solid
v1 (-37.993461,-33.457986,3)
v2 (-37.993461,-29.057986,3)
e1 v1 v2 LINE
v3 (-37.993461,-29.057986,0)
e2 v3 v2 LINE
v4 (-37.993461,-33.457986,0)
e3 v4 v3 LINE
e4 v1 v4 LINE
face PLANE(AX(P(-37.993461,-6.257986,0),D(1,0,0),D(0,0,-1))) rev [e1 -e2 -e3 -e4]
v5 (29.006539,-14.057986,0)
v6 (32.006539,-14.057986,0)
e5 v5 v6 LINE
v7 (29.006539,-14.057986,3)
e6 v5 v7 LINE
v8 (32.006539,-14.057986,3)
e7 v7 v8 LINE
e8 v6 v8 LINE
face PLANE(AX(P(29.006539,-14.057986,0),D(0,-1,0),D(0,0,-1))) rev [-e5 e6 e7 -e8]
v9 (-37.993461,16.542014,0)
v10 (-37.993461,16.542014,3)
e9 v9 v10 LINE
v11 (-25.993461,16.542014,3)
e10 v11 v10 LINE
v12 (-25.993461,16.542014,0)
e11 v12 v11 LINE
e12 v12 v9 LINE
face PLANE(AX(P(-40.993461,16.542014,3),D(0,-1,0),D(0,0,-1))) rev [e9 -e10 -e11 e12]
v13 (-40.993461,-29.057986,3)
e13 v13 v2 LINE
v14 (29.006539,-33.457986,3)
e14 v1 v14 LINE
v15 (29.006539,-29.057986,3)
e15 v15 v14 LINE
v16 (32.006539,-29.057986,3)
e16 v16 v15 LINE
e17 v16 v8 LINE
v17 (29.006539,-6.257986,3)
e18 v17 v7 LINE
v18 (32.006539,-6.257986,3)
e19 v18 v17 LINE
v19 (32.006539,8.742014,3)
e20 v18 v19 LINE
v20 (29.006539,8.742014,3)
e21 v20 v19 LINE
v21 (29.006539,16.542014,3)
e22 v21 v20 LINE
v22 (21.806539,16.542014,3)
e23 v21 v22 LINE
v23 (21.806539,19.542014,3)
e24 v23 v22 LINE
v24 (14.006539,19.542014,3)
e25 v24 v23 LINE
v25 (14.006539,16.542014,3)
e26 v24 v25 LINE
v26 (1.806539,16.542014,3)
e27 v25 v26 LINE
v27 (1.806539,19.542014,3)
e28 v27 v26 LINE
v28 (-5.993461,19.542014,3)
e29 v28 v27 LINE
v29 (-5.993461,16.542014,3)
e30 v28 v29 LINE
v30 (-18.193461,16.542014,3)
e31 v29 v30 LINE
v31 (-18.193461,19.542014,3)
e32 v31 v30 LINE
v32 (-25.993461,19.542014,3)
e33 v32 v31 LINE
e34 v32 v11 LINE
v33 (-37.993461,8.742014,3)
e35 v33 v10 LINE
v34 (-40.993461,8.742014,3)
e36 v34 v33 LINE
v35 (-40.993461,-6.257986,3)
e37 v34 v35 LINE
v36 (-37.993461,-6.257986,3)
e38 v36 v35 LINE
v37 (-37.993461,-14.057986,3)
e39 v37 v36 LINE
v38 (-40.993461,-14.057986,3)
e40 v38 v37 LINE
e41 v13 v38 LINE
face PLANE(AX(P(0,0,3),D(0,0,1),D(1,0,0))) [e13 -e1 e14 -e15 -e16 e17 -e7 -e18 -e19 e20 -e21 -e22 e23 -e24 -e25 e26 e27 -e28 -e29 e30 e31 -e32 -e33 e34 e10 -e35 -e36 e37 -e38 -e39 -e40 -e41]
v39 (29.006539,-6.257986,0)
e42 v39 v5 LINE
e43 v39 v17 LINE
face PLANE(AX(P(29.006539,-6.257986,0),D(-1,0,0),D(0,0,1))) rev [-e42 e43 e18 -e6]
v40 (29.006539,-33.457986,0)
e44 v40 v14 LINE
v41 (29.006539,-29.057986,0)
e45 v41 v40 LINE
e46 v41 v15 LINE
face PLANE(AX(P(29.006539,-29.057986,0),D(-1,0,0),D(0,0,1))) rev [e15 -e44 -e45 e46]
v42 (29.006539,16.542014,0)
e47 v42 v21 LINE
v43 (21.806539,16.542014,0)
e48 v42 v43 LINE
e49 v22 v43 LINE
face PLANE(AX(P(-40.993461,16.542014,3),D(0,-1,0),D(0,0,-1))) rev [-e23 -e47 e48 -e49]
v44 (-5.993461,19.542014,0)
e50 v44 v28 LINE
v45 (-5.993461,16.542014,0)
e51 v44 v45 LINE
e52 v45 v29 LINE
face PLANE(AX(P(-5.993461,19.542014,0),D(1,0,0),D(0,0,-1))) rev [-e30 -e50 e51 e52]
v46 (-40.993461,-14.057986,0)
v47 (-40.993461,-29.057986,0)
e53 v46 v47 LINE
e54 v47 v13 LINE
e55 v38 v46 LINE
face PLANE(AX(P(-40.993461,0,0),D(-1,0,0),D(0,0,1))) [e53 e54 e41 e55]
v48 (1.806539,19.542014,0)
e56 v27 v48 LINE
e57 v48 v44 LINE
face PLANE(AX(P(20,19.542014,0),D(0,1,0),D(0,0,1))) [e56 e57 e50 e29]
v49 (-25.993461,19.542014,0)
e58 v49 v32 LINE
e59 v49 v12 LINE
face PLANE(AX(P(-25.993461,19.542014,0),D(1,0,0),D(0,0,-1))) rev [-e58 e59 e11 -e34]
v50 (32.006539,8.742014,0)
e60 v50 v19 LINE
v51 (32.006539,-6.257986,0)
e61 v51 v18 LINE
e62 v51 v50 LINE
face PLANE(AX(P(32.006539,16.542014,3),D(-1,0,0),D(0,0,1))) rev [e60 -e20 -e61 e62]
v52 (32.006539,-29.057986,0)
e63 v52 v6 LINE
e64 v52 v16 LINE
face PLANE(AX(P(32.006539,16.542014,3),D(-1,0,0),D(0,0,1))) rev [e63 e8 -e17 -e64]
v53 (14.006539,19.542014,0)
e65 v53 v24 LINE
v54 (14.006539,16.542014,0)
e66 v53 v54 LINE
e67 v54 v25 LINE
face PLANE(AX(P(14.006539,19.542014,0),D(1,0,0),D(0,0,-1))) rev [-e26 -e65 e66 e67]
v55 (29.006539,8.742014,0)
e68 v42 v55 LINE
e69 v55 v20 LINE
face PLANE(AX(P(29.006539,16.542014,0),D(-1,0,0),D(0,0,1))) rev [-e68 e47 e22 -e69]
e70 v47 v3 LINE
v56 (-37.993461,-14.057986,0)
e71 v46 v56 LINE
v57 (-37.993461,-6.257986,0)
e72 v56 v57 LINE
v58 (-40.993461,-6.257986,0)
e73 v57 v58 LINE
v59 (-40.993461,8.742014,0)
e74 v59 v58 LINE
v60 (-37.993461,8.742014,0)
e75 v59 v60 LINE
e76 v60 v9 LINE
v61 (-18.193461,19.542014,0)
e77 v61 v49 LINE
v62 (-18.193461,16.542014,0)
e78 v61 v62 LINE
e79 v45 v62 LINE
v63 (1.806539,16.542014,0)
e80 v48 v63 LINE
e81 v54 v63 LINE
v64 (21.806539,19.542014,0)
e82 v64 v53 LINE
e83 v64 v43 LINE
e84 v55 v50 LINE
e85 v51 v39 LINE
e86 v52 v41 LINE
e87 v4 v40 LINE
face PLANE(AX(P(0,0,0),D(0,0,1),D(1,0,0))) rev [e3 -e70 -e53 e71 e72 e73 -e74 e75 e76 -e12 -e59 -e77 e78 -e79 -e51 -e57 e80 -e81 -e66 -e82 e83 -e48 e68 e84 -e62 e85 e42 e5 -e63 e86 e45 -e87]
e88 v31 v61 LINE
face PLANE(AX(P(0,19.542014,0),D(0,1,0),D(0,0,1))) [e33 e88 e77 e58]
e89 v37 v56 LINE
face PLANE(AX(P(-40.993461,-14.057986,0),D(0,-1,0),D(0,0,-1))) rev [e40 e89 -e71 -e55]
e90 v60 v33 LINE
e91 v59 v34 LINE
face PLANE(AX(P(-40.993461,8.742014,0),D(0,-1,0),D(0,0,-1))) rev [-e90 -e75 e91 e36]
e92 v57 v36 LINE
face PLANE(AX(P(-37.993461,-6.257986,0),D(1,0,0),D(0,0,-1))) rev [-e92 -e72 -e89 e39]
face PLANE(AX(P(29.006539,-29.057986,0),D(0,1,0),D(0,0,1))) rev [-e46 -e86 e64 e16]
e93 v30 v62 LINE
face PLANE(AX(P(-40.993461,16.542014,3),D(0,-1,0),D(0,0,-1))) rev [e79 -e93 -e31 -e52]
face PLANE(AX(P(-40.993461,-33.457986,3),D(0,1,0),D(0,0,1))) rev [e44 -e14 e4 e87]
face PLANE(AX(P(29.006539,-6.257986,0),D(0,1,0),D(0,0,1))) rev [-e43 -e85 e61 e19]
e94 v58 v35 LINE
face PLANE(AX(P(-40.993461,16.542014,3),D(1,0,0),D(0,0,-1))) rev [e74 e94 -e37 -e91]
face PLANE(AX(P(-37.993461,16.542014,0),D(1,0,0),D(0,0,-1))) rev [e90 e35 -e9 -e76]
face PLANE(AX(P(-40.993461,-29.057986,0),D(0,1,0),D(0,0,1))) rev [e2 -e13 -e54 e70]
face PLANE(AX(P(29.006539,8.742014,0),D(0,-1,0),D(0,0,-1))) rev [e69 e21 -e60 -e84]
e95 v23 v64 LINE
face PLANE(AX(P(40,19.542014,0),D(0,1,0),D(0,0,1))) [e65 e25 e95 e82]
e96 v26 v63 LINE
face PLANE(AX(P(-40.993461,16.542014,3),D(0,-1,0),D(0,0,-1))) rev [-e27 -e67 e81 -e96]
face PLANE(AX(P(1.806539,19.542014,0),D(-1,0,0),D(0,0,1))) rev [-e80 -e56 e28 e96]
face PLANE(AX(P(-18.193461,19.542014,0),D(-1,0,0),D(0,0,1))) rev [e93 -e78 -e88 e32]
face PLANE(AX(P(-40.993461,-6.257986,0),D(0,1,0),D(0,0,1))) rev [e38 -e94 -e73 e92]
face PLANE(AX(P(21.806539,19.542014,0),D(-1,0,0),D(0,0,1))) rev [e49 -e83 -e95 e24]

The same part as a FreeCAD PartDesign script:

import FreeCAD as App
import Part
import Sketcher


def add_polygon(sketch, points):
    """Adds a closed chain of lines whose ends are joined by coincident constraints."""
    first, n = sketch.GeometryCount, len(points)
    for a, b in zip(points, points[1:] + points[:1]):
        sketch.addGeometry(Part.LineSegment(App.Vector(*a, 0), App.Vector(*b, 0)), False)
    for i in range(n):
        sketch.addConstraint(Sketcher.Constraint("Coincident", first + i, 2, first + (i + 1) % n, 1))

doc = App.newDocument("Part")
params = doc.addObject("Spreadsheet::Sheet", "Params")
for row, (alias, value) in enumerate([
    ("sketch1_width", "73 mm"),
    ("sketch1_height", "50 mm"),
    ("pad1_length", "3 mm"),
    ("sketch2_width", "3 mm"),
    ("sketch2_height", "7.8 mm"),
    ("linearpattern_pitch", "22.8 mm"),
    ("sketch3_width", "3 mm"),
    ("sketch3_height", "7.8 mm"),
    ("linearpattern2_pitch", "22.8 mm"),
    ("sketch4_width", "3 mm"),
    ("sketch4_height", "19.4 mm"),
    ("pocket3_length", "10 mm"),
    ("sketch5_height", "3 mm"),
    ("sketch5_width", "7.8 mm"),
    ("pad2_length", "3 mm"),
    ("linearpattern3_pitch", "20 mm"),
    ("sketch6_width", "15 mm"),
    ("sketch6_height", "3 mm"),
    ("pad3_length", "3 mm"),
], start=1):
    params.set(f"A{row}", alias)
    params.set(f"B{row}", "=" + value)
    params.setAlias(f"B{row}", alias)

body = doc.addObject("PartDesign::Body", "Body")

sketch1 = body.newObject("Sketcher::SketchObject", "Sketch")
sketch1.AttachmentSupport = (doc.getObject("XY_Plane"), [""])
sketch1.MapMode = "FlatFace"
add_polygon(sketch1, [(-41, 17), (-41, -33), (32, -33), (32, 17)])
sketch1.addConstraint(Sketcher.Constraint("Vertical", 0))
sketch1.addConstraint(Sketcher.Constraint("Horizontal", 1))
sketch1.addConstraint(Sketcher.Constraint("Vertical", 2))
sketch1.addConstraint(Sketcher.Constraint("Horizontal", 3))
sketch1.addConstraint(Sketcher.Constraint("DistanceX", 1, 1, 1, 2, 73.0))
sketch1.addConstraint(Sketcher.Constraint("DistanceY", 0, 2, 0, 1, 50.0))
sketch1.addConstraint(Sketcher.Constraint("DistanceX", 0, 2, -1, 1, 40.993461))
sketch1.addConstraint(Sketcher.Constraint("DistanceY", 0, 2, -1, 1, 33.457986))
sketch1.setExpression("Constraints[8]", "Params.sketch1_width")
sketch1.setExpression("Constraints[9]", "Params.sketch1_height")
pad1 = body.newObject("PartDesign::Pad", "Pad")
pad1.Profile = sketch1
pad1.setExpression("Length", "Params.pad1_length")

sketch2 = body.newObject("Sketcher::SketchObject", "Sketch001")
sketch2.AttachmentSupport = (doc.getObject("XY_Plane"), [""])
sketch2.MapMode = "FlatFace"
sketch2.AttachmentOffset = App.Placement(App.Vector(0, 0, 3), App.Rotation())
add_polygon(sketch2, [(-41, 16.5), (-41, 8.7), (-38, 8.7), (-38, 16.5)])
sketch2.addConstraint(Sketcher.Constraint("Vertical", 0))
sketch2.addConstraint(Sketcher.Constraint("Horizontal", 1))
sketch2.addConstraint(Sketcher.Constraint("Vertical", 2))
sketch2.addConstraint(Sketcher.Constraint("Horizontal", 3))
sketch2.addConstraint(Sketcher.Constraint("DistanceX", 1, 1, 1, 2, 3.0))
sketch2.addConstraint(Sketcher.Constraint("DistanceY", 0, 2, 0, 1, 7.8))
sketch2.addConstraint(Sketcher.Constraint("DistanceX", 0, 2, -1, 1, 40.993461))
sketch2.addConstraint(Sketcher.Constraint("DistanceY", -1, 1, 0, 2, 8.742014))
sketch2.setExpression("Constraints[8]", "Params.sketch2_width")
sketch2.setExpression("Constraints[9]", "Params.sketch2_height")
pocket1 = body.newObject("PartDesign::Pocket", "Pocket")
pocket1.Profile = sketch2
pocket1.Type = "ThroughAll"
doc.recompute()

linearpattern = body.newObject("PartDesign::LinearPattern", "LinearPattern")
linearpattern.Originals = [pocket1]
linearpattern.Direction = (doc.getObject("Y_Axis"), [""])
linearpattern.Mode = "offset"
linearpattern.setExpression("Offset", "Params.linearpattern_pitch")
linearpattern.Occurrences = 3
linearpattern.Reversed = True
body.Tip = linearpattern

sketch3 = body.newObject("Sketcher::SketchObject", "Sketch002")
sketch3.AttachmentSupport = (doc.getObject("XY_Plane"), [""])
sketch3.MapMode = "FlatFace"
sketch3.AttachmentOffset = App.Placement(App.Vector(0, 0, 3), App.Rotation())
add_polygon(sketch3, [(29, 16.5), (29, 8.7), (32, 8.7), (32, 16.5)])
sketch3.addConstraint(Sketcher.Constraint("Vertical", 0))
sketch3.addConstraint(Sketcher.Constraint("Horizontal", 1))
sketch3.addConstraint(Sketcher.Constraint("Vertical", 2))
sketch3.addConstraint(Sketcher.Constraint("Horizontal", 3))
sketch3.addConstraint(Sketcher.Constraint("DistanceX", 1, 1, 1, 2, 3.0))
sketch3.addConstraint(Sketcher.Constraint("DistanceY", 0, 2, 0, 1, 7.8))
sketch3.addConstraint(Sketcher.Constraint("DistanceX", -1, 1, 0, 2, 29.006539))
sketch3.addConstraint(Sketcher.Constraint("DistanceY", -1, 1, 0, 2, 8.742014))
sketch3.setExpression("Constraints[8]", "Params.sketch3_width")
sketch3.setExpression("Constraints[9]", "Params.sketch3_height")
pocket2 = body.newObject("PartDesign::Pocket", "Pocket001")
pocket2.Profile = sketch3
pocket2.Type = "ThroughAll"
doc.recompute()

linearpattern2 = body.newObject("PartDesign::LinearPattern", "LinearPattern001")
linearpattern2.Originals = [pocket2]
linearpattern2.Direction = (doc.getObject("Y_Axis"), [""])
linearpattern2.Mode = "offset"
linearpattern2.setExpression("Offset", "Params.linearpattern2_pitch")
linearpattern2.Occurrences = 4
linearpattern2.Reversed = True
body.Tip = linearpattern2

sketch4 = body.newObject("Sketcher::SketchObject", "Sketch003")
sketch4.AttachmentSupport = (doc.getObject("XY_Plane"), [""])
sketch4.MapMode = "FlatFace"
sketch4.AttachmentOffset = App.Placement(App.Vector(0, 0, 3), App.Rotation())
add_polygon(sketch4, [(-41, -14.1), (-41, -33.5), (-38, -33.5), (-38, -14.1)])
sketch4.addConstraint(Sketcher.Constraint("Vertical", 0))
sketch4.addConstraint(Sketcher.Constraint("Horizontal", 1))
sketch4.addConstraint(Sketcher.Constraint("Vertical", 2))
sketch4.addConstraint(Sketcher.Constraint("Horizontal", 3))
sketch4.addConstraint(Sketcher.Constraint("DistanceX", 1, 1, 1, 2, 3.0))
sketch4.addConstraint(Sketcher.Constraint("DistanceY", 0, 2, 0, 1, 19.4))
sketch4.addConstraint(Sketcher.Constraint("DistanceX", 0, 2, -1, 1, 40.993461))
sketch4.addConstraint(Sketcher.Constraint("DistanceY", 0, 2, -1, 1, 33.457986))
sketch4.setExpression("Constraints[8]", "Params.sketch4_width")
sketch4.setExpression("Constraints[9]", "Params.sketch4_height")
pocket3 = body.newObject("PartDesign::Pocket", "Pocket002")
pocket3.Profile = sketch4
pocket3.setExpression("Length", "Params.pocket3_length")

sketch5 = body.newObject("Sketcher::SketchObject", "Sketch004")
sketch5.AttachmentSupport = (doc.getObject("XZ_Plane"), [""])
sketch5.MapMode = "FlatFace"
sketch5.AttachmentOffset = App.Placement(App.Vector(0, 0, -16.542014), App.Rotation())
add_polygon(sketch5, [(-26, 0), (-26, 3), (-18.2, 3), (-18.2, 0)])
sketch5.addConstraint(Sketcher.Constraint("Vertical", 0))
sketch5.addConstraint(Sketcher.Constraint("Horizontal", 1))
sketch5.addConstraint(Sketcher.Constraint("Vertical", 2))
sketch5.addConstraint(Sketcher.Constraint("Horizontal", 3))
sketch5.addConstraint(Sketcher.Constraint("PointOnObject", 2, 2, -1))
sketch5.addConstraint(Sketcher.Constraint("DistanceY", 0, 1, 0, 2, 3.0))
sketch5.addConstraint(Sketcher.Constraint("DistanceX", 1, 1, 1, 2, 7.8))
sketch5.addConstraint(Sketcher.Constraint("DistanceX", 0, 2, -1, 1, 25.993461))
sketch5.setExpression("Constraints[9]", "Params.sketch5_height")
sketch5.setExpression("Constraints[10]", "Params.sketch5_width")
pad2 = body.newObject("PartDesign::Pad", "Pad001")
pad2.Profile = sketch5
pad2.setExpression("Length", "Params.pad2_length")
pad2.Reversed = True
doc.recompute()

linearpattern3 = body.newObject("PartDesign::LinearPattern", "LinearPattern002")
linearpattern3.Originals = [pad2]
linearpattern3.Direction = (doc.getObject("X_Axis"), [""])
linearpattern3.Mode = "offset"
linearpattern3.setExpression("Offset", "Params.linearpattern3_pitch")
linearpattern3.Occurrences = 3
body.Tip = linearpattern3

sketch6 = body.newObject("Sketcher::SketchObject", "Sketch005")
sketch6.AttachmentSupport = (doc.getObject("YZ_Plane"), [""])
sketch6.MapMode = "FlatFace"
sketch6.AttachmentOffset = App.Placement(App.Vector(0, 0, -37.993461), App.Rotation())
add_polygon(sketch6, [(-14.1, 0), (-29.1, 0), (-29.1, 3), (-14.1, 3)])
sketch6.addConstraint(Sketcher.Constraint("Horizontal", 0))
sketch6.addConstraint(Sketcher.Constraint("Vertical", 1))
sketch6.addConstraint(Sketcher.Constraint("Horizontal", 2))
sketch6.addConstraint(Sketcher.Constraint("Vertical", 3))
sketch6.addConstraint(Sketcher.Constraint("PointOnObject", 0, 2, -1))
sketch6.addConstraint(Sketcher.Constraint("DistanceX", 0, 2, 0, 1, 15.0))
sketch6.addConstraint(Sketcher.Constraint("DistanceY", 1, 1, 1, 2, 3.0))
sketch6.addConstraint(Sketcher.Constraint("DistanceX", 0, 2, -1, 1, 29.057986))
sketch6.setExpression("Constraints[9]", "Params.sketch6_width")
sketch6.setExpression("Constraints[10]", "Params.sketch6_height")
pad3 = body.newObject("PartDesign::Pad", "Pad002")
pad3.Profile = sketch6
pad3.setExpression("Length", "Params.pad3_length")
pad3.Reversed = True

doc.recompute()
